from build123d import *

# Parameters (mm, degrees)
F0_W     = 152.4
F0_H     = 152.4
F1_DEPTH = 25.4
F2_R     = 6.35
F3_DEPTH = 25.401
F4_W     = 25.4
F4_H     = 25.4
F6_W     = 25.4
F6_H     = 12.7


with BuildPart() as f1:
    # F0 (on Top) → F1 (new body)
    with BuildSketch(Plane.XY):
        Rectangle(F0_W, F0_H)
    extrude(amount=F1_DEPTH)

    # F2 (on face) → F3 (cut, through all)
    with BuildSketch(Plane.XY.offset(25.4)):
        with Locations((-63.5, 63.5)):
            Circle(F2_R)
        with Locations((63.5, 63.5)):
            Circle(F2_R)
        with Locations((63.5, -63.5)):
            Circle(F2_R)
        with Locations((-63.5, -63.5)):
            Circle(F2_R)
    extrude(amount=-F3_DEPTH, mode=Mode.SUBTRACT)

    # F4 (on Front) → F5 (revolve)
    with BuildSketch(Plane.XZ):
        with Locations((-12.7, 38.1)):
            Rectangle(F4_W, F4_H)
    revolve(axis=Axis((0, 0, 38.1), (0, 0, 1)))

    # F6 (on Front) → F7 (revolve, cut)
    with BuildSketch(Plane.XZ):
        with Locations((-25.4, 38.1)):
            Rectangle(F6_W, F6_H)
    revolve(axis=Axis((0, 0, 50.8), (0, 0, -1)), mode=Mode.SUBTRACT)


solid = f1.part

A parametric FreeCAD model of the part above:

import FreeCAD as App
import Part
import Sketcher
Q = App.Units.Quantity

doc = App.newDocument("Part")
params = doc.addObject("Spreadsheet::Sheet", "Params")
for row, (alias, value) in enumerate([
    ("sketch1_width", "6 in"),
    ("pad1_length", "1 in"),
    ("sketch2_diameter", "0.5 in"),
    ("sketch3_width", "1 in"),
    ("revolution_angle", "360 deg"),
    ("sketch4_width", "1 in"),
    ("sketch4_height", "0.5 in"),
    ("groove_angle", "360 deg"),
], start=1):
    params.set(f"A{row}", alias)
    params.set(f"B{row}", "=" + value)
    params.setAlias(f"B{row}", alias)

body = doc.addObject("PartDesign::Body", "Body")

# Sketch on XY plane
sketch1 = body.newObject("Sketcher::SketchObject", "Sketch")
sketch1.AttachmentSupport = (doc.getObject("XY_Plane"), [""])
sketch1.MapMode = "FlatFace"
sketch1.addGeometry(Part.LineSegment(App.Vector(-76, 76, 0), App.Vector(-76, -76, 0)), False)
sketch1.addGeometry(Part.LineSegment(App.Vector(-76, -76, 0), App.Vector(76, -76, 0)), False)
sketch1.addGeometry(Part.LineSegment(App.Vector(76, -76, 0), App.Vector(76, 76, 0)), False)
sketch1.addGeometry(Part.LineSegment(App.Vector(76, 76, 0), App.Vector(-76, 76, 0)), False)
sketch1.addConstraint(Sketcher.Constraint("Coincident", 0, 2, 1, 1))
sketch1.addConstraint(Sketcher.Constraint("Coincident", 1, 2, 2, 1))
sketch1.addConstraint(Sketcher.Constraint("Coincident", 2, 2, 3, 1))
sketch1.addConstraint(Sketcher.Constraint("Coincident", 3, 2, 0, 1))
sketch1.addConstraint(Sketcher.Constraint("Vertical", 0))
sketch1.addConstraint(Sketcher.Constraint("Horizontal", 1))
sketch1.addConstraint(Sketcher.Constraint("Vertical", 2))
sketch1.addConstraint(Sketcher.Constraint("Horizontal", 3))
sketch1.addConstraint(Sketcher.Constraint("Symmetric", 0, 2, 2, 2, -1, 1))
sketch1.addConstraint(Sketcher.Constraint("Equal", 3, 0))
sketch1.addConstraint(Sketcher.Constraint("DistanceX", 1, 1, 1, 2, Q("6 in")))
sketch1.setExpression("Constraints[10]", "Params.sketch1_width")
pad1 = body.newObject("PartDesign::Pad", "Pad")
pad1.Profile = sketch1
pad1.setExpression("Length", "Params.pad1_length")

# Sketch on XY plane
sketch2 = body.newObject("Sketcher::SketchObject", "Sketch001")
sketch2.AttachmentSupport = (doc.getObject("XY_Plane"), [""])
sketch2.MapMode = "FlatFace"
sketch2.AttachmentOffset = App.Placement(App.Vector(0, 0, 1 * 25.4), App.Rotation())
sketch2.addGeometry(Part.Circle(App.Vector(-64, 64, 0), App.Vector(0, 0, 1), 6), False)
sketch2.addGeometry(Part.Circle(App.Vector(64, 64, 0), App.Vector(0, 0, 1), 6), False)
sketch2.addGeometry(Part.Circle(App.Vector(64, -64, 0), App.Vector(0, 0, 1), 6), False)
sketch2.addGeometry(Part.Circle(App.Vector(-64, -64, 0), App.Vector(0, 0, 1), 6), False)
sketch2.addConstraint(Sketcher.Constraint("Equal", 0, 1))
sketch2.addConstraint(Sketcher.Constraint("Equal", 1, 2))
sketch2.addConstraint(Sketcher.Constraint("Equal", 2, 3))
sketch2.addConstraint(Sketcher.Constraint("Symmetric", 0, 3, 2, 3, -1, 1))
sketch2.addConstraint(Sketcher.Constraint("Symmetric", 1, 3, 3, 3, -1, 1))
sketch2.addConstraint(Sketcher.Constraint("Symmetric", 0, 3, 1, 3, -2))
sketch2.addConstraint(Sketcher.Constraint("Diameter", 0, Q("0.5 in")))
sketch2.addConstraint(Sketcher.Constraint("DistanceX", 0, 3, 1, 3, Q("5 in")))
sketch2.addConstraint(Sketcher.Constraint("DistanceY", 2, 3, 1, 3, Q("5 in")))
sketch2.setExpression("Constraints[6]", "Params.sketch2_diameter")
pocket1 = body.newObject("PartDesign::Pocket", "Pocket")
pocket1.Profile = sketch2
pocket1.Type = "ThroughAll"

# Sketch on XZ plane
sketch3 = body.newObject("Sketcher::SketchObject", "Sketch002")
sketch3.AttachmentSupport = (doc.getObject("XZ_Plane"), [""])
sketch3.MapMode = "FlatFace"
sketch3.addGeometry(Part.LineSegment(App.Vector(-25, 51, 0), App.Vector(-25, 25, 0)), False)
sketch3.addGeometry(Part.LineSegment(App.Vector(-25, 25, 0), App.Vector(0, 25, 0)), False)
sketch3.addGeometry(Part.LineSegment(App.Vector(0, 25, 0), App.Vector(0, 51, 0)), False)
sketch3.addGeometry(Part.LineSegment(App.Vector(0, 51, 0), App.Vector(-25, 51, 0)), False)
sketch3.addConstraint(Sketcher.Constraint("Coincident", 0, 2, 1, 1))
sketch3.addConstraint(Sketcher.Constraint("Coincident", 1, 2, 2, 1))
sketch3.addConstraint(Sketcher.Constraint("Coincident", 2, 2, 3, 1))
sketch3.addConstraint(Sketcher.Constraint("Coincident", 3, 2, 0, 1))
sketch3.addConstraint(Sketcher.Constraint("Vertical", 0))
sketch3.addConstraint(Sketcher.Constraint("Horizontal", 1))
sketch3.addConstraint(Sketcher.Constraint("Vertical", 2))
sketch3.addConstraint(Sketcher.Constraint("Horizontal", 3))
sketch3.addConstraint(Sketcher.Constraint("PointOnObject", 1, 2, -2))
sketch3.addConstraint(Sketcher.Constraint("Equal", 3, 0))
sketch3.addConstraint(Sketcher.Constraint("DistanceX", 1, 1, 1, 2, Q("1 in")))
sketch3.addConstraint(Sketcher.Constraint("DistanceY", -1, 1, 0, 2, Q("1 in")))
sketch3.setExpression("Constraints[10]", "Params.sketch3_width")
revolution = body.newObject("PartDesign::Revolution", "Revolution")
revolution.Profile = sketch3
revolution.ReferenceAxis = (sketch3, ["V_Axis"])
revolution.setExpression("Angle", "Params.revolution_angle")

# Sketch on XZ plane
sketch4 = body.newObject("Sketcher::SketchObject", "Sketch003")
sketch4.AttachmentSupport = (doc.getObject("XZ_Plane"), [""])
sketch4.MapMode = "FlatFace"
sketch4.addGeometry(Part.LineSegment(App.Vector(-38, 44, 0), App.Vector(-38, 32, 0)), False)
sketch4.addGeometry(Part.LineSegment(App.Vector(-38, 32, 0), App.Vector(-13, 32, 0)), False)
sketch4.addGeometry(Part.LineSegment(App.Vector(-13, 32, 0), App.Vector(-13, 44, 0)), False)
sketch4.addGeometry(Part.LineSegment(App.Vector(-13, 44, 0), App.Vector(-38, 44, 0)), False)
sketch4.addConstraint(Sketcher.Constraint("Coincident", 0, 2, 1, 1))
sketch4.addConstraint(Sketcher.Constraint("Coincident", 1, 2, 2, 1))
sketch4.addConstraint(Sketcher.Constraint("Coincident", 2, 2, 3, 1))
sketch4.addConstraint(Sketcher.Constraint("Coincident", 3, 2, 0, 1))
sketch4.addConstraint(Sketcher.Constraint("Vertical", 0))
sketch4.addConstraint(Sketcher.Constraint("Horizontal", 1))
sketch4.addConstraint(Sketcher.Constraint("Vertical", 2))
sketch4.addConstraint(Sketcher.Constraint("Horizontal", 3))
sketch4.addConstraint(Sketcher.Constraint("DistanceX", 1, 1, 1, 2, Q("1 in")))
sketch4.addConstraint(Sketcher.Constraint("DistanceY", 0, 2, 0, 1, Q("0.5 in")))
sketch4.addConstraint(Sketcher.Constraint("DistanceX", 0, 2, -1, 1, Q("1.5 in")))
sketch4.addConstraint(Sketcher.Constraint("DistanceY", -1, 1, 0, 2, Q("1.25 in")))
sketch4.setExpression("Constraints[8]", "Params.sketch4_width")
sketch4.setExpression("Constraints[9]", "Params.sketch4_height")
groove = body.newObject("PartDesign::Groove", "Groove")
groove.Profile = sketch4
groove.ReferenceAxis = (sketch4, ["V_Axis"])
groove.setExpression("Angle", "Params.groove_angle")

doc.recompute()
